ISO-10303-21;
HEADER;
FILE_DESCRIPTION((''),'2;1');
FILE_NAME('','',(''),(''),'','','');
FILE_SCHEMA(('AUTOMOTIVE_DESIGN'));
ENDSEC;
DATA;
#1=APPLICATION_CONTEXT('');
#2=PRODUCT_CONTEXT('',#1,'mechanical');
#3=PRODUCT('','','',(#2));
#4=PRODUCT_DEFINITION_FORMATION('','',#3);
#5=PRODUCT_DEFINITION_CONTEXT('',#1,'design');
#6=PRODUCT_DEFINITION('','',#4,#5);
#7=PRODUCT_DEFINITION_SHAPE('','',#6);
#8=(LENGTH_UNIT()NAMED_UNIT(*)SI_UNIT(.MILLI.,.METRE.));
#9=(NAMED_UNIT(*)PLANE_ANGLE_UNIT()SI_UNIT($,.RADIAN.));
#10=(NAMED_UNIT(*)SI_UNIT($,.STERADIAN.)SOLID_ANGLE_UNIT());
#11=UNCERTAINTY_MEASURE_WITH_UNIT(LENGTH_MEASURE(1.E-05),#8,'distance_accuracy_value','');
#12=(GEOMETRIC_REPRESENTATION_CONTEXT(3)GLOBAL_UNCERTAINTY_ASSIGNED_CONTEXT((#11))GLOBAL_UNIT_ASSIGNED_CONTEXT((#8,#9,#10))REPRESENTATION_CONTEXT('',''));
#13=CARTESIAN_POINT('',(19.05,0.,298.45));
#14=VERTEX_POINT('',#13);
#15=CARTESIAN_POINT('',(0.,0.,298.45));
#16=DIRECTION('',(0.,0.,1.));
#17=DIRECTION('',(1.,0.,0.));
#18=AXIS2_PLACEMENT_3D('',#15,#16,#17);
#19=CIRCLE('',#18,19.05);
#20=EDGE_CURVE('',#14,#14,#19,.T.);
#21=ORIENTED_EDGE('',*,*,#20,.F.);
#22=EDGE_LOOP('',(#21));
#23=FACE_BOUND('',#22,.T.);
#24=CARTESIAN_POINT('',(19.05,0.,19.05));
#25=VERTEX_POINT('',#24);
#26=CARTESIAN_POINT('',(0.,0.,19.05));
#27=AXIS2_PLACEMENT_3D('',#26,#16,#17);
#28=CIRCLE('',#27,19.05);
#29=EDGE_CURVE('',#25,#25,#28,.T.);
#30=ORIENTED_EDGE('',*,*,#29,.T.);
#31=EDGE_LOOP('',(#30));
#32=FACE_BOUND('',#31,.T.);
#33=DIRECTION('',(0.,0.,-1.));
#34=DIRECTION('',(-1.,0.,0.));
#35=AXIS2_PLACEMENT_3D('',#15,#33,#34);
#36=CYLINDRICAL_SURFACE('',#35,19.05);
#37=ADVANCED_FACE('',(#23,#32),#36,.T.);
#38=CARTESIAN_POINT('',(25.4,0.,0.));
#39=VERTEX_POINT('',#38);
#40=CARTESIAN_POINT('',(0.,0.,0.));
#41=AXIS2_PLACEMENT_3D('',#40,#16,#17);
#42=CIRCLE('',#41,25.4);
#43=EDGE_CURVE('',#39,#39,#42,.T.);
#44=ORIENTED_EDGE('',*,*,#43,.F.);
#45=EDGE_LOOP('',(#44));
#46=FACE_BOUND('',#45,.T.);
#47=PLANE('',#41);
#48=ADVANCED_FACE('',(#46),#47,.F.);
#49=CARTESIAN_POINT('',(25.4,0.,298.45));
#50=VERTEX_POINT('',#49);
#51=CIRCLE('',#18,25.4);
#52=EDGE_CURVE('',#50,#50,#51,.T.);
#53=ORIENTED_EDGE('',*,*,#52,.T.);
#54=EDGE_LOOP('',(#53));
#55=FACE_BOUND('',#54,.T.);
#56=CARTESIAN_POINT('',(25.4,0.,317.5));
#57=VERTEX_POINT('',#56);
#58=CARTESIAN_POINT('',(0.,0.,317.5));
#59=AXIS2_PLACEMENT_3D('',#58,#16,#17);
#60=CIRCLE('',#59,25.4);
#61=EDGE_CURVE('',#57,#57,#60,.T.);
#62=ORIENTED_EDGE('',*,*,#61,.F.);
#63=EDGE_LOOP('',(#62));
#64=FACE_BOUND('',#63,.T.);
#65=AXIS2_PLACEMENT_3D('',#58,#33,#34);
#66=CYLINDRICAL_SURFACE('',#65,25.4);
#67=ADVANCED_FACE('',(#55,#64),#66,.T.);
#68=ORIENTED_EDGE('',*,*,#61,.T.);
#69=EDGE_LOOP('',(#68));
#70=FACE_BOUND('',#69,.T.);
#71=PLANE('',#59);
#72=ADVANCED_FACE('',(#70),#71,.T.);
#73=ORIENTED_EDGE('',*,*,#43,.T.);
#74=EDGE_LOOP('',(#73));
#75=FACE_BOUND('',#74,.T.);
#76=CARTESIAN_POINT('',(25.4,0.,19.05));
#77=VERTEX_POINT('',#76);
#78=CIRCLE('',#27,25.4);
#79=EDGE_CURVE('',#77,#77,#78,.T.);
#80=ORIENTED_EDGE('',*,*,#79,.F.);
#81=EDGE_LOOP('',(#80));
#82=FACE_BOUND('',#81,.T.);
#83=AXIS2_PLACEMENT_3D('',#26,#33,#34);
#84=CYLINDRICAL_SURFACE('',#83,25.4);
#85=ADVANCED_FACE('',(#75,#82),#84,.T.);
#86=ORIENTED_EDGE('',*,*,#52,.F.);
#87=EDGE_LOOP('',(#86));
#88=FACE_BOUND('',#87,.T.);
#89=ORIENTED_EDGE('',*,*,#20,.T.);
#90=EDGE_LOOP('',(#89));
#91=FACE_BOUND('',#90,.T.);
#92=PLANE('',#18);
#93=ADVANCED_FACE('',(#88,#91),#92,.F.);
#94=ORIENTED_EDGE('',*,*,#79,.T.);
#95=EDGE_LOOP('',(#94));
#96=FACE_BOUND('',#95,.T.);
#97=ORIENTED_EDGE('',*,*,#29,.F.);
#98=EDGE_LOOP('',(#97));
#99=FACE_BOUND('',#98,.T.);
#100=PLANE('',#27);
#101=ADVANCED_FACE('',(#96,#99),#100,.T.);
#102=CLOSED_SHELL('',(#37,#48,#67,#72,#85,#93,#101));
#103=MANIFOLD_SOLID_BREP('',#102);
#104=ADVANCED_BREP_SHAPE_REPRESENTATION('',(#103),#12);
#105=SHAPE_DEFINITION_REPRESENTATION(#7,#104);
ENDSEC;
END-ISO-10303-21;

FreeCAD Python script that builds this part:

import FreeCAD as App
import Part
import Sketcher
Q = App.Units.Quantity

doc = App.newDocument("Part")
body = doc.addObject("PartDesign::Body", "Body")

sketch1 = body.newObject("Sketcher::SketchObject", "Sketch")
sketch1.AttachmentSupport = (doc.getObject("XY_Plane"), [""])
sketch1.MapMode = "FlatFace"
sketch1.addGeometry(Part.Circle(App.Vector(0, 0, 0), App.Vector(0, 0, 1), 25), False)
sketch1.addConstraint(Sketcher.Constraint("Coincident", 0, 3, -1, 1))
sketch1.addConstraint(Sketcher.Constraint("Diameter", 0, Q("2 in")))
pad1 = body.newObject("PartDesign::Pad", "Pad")
pad1.Profile = sketch1
pad1.Length = Q("0.75 in")

sketch2 = body.newObject("Sketcher::SketchObject", "Sketch001")
sketch2.AttachmentSupport = (doc.getObject("XY_Plane"), [""])
sketch2.MapMode = "FlatFace"
sketch2.AttachmentOffset = App.Placement(App.Vector(0, 0, 0.75 * 25.4), App.Rotation())
sketch2.addGeometry(Part.Circle(App.Vector(0, 0, 0), App.Vector(0, 0, 1), 19), False)
sketch2.addConstraint(Sketcher.Constraint("Coincident", 0, 3, -1, 1))
sketch2.addConstraint(Sketcher.Constraint("Diameter", 0, Q("1.5 in")))
pad2 = body.newObject("PartDesign::Pad", "Pad001")
pad2.Profile = sketch2
pad2.Length = Q("11 in")

sketch3 = body.newObject("Sketcher::SketchObject", "Sketch002")
sketch3.AttachmentSupport = (doc.getObject("XY_Plane"), [""])
sketch3.MapMode = "FlatFace"
sketch3.AttachmentOffset = App.Placement(App.Vector(0, 0, 11.75 * 25.4), App.Rotation())
sketch3.addGeometry(Part.Circle(App.Vector(0, 0, 0), App.Vector(0, 0, 1), 25), False)
sketch3.addConstraint(Sketcher.Constraint("Coincident", 0, 3, -1, 1))
sketch3.addConstraint(Sketcher.Constraint("Diameter", 0, Q("2 in")))
pad3 = body.newObject("PartDesign::Pad", "Pad002")
pad3.Profile = sketch3
pad3.Length = Q("0.75 in")

doc.recompute()
